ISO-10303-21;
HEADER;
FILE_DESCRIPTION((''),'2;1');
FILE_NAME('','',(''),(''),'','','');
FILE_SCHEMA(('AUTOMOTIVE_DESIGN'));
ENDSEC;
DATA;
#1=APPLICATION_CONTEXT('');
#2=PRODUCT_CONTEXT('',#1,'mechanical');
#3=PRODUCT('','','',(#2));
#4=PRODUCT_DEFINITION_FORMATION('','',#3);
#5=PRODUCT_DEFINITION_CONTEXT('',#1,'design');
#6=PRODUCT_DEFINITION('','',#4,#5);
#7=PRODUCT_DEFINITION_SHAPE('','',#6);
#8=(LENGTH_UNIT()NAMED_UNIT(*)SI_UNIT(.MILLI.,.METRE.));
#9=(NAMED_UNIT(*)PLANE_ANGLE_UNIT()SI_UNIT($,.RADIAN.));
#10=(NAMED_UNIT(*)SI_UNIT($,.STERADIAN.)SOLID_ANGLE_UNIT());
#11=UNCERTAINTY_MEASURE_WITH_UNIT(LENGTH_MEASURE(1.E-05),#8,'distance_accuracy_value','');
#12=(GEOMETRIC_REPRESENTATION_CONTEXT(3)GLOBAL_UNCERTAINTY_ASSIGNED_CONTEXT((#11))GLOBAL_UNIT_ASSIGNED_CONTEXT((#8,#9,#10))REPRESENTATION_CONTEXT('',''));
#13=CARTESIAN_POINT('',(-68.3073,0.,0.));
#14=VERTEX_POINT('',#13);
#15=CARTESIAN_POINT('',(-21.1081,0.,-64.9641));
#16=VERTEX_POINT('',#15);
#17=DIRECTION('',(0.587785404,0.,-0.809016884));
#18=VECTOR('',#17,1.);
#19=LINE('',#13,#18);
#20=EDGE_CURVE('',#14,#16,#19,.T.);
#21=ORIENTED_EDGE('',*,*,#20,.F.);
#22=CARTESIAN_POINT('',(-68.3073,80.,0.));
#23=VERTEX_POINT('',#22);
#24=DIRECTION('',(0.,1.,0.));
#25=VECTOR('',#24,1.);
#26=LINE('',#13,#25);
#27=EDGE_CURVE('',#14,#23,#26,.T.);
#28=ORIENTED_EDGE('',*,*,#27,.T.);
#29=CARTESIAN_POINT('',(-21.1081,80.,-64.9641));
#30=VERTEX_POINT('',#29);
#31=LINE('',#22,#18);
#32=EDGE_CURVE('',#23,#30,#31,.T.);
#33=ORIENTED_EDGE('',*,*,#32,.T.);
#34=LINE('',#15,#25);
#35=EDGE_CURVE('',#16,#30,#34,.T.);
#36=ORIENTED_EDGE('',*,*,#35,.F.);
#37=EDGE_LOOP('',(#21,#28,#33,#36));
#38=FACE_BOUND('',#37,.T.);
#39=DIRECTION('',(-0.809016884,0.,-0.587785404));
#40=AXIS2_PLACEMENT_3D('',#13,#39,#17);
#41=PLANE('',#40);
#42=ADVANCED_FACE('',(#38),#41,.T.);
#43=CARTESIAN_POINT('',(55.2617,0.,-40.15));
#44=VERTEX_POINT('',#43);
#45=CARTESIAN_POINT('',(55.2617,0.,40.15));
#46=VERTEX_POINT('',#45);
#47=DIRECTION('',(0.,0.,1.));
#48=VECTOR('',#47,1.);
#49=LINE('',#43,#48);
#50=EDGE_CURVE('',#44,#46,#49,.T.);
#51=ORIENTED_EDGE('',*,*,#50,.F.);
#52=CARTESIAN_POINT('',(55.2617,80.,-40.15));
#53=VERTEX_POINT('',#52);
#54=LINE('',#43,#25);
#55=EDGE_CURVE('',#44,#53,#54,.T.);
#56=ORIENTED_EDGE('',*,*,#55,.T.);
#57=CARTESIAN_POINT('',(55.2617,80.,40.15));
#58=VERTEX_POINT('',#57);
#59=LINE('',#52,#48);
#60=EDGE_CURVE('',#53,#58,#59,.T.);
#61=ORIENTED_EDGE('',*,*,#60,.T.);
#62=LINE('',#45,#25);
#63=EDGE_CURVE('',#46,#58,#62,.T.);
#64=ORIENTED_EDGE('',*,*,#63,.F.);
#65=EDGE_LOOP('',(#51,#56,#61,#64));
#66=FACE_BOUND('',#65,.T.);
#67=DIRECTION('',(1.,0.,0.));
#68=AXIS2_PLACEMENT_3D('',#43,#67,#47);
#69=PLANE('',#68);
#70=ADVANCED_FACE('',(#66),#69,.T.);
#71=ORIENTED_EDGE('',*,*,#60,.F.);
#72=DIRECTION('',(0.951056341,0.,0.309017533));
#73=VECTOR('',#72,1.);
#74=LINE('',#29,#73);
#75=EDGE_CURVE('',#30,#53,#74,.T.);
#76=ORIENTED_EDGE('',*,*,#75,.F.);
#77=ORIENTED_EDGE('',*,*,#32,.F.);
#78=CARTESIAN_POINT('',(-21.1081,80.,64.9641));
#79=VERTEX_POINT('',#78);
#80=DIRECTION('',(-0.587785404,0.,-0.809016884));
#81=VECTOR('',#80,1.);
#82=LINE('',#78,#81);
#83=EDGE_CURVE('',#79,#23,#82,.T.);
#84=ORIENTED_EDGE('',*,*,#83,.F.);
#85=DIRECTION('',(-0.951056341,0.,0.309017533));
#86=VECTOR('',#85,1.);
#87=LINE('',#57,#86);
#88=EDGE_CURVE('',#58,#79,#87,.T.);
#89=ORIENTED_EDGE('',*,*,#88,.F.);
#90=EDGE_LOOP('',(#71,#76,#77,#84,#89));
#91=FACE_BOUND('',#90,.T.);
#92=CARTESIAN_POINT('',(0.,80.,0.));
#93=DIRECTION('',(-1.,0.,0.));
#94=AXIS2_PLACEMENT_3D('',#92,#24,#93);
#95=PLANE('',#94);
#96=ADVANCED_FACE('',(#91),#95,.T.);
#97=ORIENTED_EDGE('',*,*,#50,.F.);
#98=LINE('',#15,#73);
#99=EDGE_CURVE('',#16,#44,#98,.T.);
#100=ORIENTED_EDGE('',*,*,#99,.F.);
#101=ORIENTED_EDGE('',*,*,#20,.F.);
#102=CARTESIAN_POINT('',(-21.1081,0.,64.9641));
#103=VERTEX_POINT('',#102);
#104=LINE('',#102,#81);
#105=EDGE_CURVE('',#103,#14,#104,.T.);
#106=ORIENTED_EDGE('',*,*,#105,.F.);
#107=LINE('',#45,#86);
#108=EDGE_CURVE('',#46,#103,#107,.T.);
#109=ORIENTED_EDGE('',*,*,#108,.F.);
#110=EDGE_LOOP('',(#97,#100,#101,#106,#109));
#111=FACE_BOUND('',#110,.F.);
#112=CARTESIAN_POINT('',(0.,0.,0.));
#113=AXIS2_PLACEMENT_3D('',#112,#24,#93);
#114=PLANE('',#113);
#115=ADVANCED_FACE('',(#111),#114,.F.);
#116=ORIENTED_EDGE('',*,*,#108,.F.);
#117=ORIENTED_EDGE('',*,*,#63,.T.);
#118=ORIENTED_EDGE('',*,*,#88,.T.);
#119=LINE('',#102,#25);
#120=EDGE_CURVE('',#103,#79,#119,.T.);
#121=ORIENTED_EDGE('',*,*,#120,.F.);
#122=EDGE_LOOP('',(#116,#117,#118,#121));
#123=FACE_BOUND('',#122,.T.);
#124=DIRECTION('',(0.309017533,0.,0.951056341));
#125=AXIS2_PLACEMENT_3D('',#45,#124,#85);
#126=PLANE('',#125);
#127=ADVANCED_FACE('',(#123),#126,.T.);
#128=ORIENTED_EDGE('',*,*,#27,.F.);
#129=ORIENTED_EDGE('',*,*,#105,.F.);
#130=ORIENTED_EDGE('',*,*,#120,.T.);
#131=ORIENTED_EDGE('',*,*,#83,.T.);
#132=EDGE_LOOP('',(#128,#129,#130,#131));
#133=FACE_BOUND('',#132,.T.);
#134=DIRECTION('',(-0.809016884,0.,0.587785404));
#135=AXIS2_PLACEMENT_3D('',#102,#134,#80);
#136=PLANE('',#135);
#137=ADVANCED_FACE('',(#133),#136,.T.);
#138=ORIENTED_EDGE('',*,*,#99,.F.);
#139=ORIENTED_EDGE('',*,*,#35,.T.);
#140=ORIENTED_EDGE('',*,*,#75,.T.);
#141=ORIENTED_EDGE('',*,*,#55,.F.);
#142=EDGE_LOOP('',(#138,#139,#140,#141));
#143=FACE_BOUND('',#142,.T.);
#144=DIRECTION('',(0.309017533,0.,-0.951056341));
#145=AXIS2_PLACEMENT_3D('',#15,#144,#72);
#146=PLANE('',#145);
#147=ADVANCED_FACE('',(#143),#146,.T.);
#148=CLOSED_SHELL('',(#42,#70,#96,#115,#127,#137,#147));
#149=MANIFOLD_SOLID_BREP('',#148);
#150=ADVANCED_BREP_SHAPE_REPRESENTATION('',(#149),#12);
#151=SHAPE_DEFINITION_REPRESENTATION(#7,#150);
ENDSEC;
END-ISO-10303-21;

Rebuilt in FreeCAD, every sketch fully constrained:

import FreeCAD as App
import Part
import Sketcher
from FreeCAD import Vector
Q = App.Units.Quantity

doc = App.newDocument("Part")
body = doc.addObject("PartDesign::Body", "Body")

# Sketch on XZ plane
sketch1 = body.newObject("Sketcher::SketchObject", "Sketch")
sketch1.AttachmentSupport = (doc.getObject("XZ_Plane"), [""])
sketch1.MapMode = "FlatFace"
sketch1.addGeometry(Part.LineSegment(Vector(-21, -65, 0), Vector(-68, 0, 0)), False)
sketch1.addGeometry(Part.LineSegment(Vector(-68, 0, 0), Vector(-21, 65, 0)), False)
sketch1.addGeometry(Part.LineSegment(Vector(-21, 65, 0), Vector(55, 40, 0)), False)
sketch1.addGeometry(Part.LineSegment(Vector(55, 40, 0), Vector(55, -40, 0)), False)
sketch1.addGeometry(Part.LineSegment(Vector(55, -40, 0), Vector(-21, -65, 0)), False)
sketch1.addConstraint(Sketcher.Constraint("Coincident", 0, 2, 1, 1))
sketch1.addConstraint(Sketcher.Constraint("Coincident", 1, 2, 2, 1))
sketch1.addConstraint(Sketcher.Constraint("Coincident", 2, 2, 3, 1))
sketch1.addConstraint(Sketcher.Constraint("Coincident", 3, 2, 4, 1))
sketch1.addConstraint(Sketcher.Constraint("Coincident", 4, 2, 0, 1))
sketch1.addConstraint(Sketcher.Constraint("Vertical", 3))
sketch1.addConstraint(Sketcher.Constraint("Symmetric", 1, 2, 4, 2, -1))
sketch1.addConstraint(Sketcher.Constraint("PointOnObject", 0, 2, -1))
sketch1.addConstraint(Sketcher.Constraint("Equal", 1, 2))
sketch1.addConstraint(Sketcher.Constraint("Equal", 2, 4))
sketch1.addConstraint(Sketcher.Constraint("DistanceY", 3, 2, 3, 1, 80.3))
sketch1.addConstraint(Sketcher.Constraint("Distance", 0, 80.3))
sketch1.addConstraint(Sketcher.Constraint("Angle", 0, Q("126 deg")))
sketch1.addConstraint(Sketcher.Constraint("DistanceX", 1, 2, -1, 1, 21.108))
pad1 = body.newObject("PartDesign::Pad", "Pad")
pad1.Profile = sketch1
pad1.Length = 80
pad1.Reversed = True

doc.recompute()
